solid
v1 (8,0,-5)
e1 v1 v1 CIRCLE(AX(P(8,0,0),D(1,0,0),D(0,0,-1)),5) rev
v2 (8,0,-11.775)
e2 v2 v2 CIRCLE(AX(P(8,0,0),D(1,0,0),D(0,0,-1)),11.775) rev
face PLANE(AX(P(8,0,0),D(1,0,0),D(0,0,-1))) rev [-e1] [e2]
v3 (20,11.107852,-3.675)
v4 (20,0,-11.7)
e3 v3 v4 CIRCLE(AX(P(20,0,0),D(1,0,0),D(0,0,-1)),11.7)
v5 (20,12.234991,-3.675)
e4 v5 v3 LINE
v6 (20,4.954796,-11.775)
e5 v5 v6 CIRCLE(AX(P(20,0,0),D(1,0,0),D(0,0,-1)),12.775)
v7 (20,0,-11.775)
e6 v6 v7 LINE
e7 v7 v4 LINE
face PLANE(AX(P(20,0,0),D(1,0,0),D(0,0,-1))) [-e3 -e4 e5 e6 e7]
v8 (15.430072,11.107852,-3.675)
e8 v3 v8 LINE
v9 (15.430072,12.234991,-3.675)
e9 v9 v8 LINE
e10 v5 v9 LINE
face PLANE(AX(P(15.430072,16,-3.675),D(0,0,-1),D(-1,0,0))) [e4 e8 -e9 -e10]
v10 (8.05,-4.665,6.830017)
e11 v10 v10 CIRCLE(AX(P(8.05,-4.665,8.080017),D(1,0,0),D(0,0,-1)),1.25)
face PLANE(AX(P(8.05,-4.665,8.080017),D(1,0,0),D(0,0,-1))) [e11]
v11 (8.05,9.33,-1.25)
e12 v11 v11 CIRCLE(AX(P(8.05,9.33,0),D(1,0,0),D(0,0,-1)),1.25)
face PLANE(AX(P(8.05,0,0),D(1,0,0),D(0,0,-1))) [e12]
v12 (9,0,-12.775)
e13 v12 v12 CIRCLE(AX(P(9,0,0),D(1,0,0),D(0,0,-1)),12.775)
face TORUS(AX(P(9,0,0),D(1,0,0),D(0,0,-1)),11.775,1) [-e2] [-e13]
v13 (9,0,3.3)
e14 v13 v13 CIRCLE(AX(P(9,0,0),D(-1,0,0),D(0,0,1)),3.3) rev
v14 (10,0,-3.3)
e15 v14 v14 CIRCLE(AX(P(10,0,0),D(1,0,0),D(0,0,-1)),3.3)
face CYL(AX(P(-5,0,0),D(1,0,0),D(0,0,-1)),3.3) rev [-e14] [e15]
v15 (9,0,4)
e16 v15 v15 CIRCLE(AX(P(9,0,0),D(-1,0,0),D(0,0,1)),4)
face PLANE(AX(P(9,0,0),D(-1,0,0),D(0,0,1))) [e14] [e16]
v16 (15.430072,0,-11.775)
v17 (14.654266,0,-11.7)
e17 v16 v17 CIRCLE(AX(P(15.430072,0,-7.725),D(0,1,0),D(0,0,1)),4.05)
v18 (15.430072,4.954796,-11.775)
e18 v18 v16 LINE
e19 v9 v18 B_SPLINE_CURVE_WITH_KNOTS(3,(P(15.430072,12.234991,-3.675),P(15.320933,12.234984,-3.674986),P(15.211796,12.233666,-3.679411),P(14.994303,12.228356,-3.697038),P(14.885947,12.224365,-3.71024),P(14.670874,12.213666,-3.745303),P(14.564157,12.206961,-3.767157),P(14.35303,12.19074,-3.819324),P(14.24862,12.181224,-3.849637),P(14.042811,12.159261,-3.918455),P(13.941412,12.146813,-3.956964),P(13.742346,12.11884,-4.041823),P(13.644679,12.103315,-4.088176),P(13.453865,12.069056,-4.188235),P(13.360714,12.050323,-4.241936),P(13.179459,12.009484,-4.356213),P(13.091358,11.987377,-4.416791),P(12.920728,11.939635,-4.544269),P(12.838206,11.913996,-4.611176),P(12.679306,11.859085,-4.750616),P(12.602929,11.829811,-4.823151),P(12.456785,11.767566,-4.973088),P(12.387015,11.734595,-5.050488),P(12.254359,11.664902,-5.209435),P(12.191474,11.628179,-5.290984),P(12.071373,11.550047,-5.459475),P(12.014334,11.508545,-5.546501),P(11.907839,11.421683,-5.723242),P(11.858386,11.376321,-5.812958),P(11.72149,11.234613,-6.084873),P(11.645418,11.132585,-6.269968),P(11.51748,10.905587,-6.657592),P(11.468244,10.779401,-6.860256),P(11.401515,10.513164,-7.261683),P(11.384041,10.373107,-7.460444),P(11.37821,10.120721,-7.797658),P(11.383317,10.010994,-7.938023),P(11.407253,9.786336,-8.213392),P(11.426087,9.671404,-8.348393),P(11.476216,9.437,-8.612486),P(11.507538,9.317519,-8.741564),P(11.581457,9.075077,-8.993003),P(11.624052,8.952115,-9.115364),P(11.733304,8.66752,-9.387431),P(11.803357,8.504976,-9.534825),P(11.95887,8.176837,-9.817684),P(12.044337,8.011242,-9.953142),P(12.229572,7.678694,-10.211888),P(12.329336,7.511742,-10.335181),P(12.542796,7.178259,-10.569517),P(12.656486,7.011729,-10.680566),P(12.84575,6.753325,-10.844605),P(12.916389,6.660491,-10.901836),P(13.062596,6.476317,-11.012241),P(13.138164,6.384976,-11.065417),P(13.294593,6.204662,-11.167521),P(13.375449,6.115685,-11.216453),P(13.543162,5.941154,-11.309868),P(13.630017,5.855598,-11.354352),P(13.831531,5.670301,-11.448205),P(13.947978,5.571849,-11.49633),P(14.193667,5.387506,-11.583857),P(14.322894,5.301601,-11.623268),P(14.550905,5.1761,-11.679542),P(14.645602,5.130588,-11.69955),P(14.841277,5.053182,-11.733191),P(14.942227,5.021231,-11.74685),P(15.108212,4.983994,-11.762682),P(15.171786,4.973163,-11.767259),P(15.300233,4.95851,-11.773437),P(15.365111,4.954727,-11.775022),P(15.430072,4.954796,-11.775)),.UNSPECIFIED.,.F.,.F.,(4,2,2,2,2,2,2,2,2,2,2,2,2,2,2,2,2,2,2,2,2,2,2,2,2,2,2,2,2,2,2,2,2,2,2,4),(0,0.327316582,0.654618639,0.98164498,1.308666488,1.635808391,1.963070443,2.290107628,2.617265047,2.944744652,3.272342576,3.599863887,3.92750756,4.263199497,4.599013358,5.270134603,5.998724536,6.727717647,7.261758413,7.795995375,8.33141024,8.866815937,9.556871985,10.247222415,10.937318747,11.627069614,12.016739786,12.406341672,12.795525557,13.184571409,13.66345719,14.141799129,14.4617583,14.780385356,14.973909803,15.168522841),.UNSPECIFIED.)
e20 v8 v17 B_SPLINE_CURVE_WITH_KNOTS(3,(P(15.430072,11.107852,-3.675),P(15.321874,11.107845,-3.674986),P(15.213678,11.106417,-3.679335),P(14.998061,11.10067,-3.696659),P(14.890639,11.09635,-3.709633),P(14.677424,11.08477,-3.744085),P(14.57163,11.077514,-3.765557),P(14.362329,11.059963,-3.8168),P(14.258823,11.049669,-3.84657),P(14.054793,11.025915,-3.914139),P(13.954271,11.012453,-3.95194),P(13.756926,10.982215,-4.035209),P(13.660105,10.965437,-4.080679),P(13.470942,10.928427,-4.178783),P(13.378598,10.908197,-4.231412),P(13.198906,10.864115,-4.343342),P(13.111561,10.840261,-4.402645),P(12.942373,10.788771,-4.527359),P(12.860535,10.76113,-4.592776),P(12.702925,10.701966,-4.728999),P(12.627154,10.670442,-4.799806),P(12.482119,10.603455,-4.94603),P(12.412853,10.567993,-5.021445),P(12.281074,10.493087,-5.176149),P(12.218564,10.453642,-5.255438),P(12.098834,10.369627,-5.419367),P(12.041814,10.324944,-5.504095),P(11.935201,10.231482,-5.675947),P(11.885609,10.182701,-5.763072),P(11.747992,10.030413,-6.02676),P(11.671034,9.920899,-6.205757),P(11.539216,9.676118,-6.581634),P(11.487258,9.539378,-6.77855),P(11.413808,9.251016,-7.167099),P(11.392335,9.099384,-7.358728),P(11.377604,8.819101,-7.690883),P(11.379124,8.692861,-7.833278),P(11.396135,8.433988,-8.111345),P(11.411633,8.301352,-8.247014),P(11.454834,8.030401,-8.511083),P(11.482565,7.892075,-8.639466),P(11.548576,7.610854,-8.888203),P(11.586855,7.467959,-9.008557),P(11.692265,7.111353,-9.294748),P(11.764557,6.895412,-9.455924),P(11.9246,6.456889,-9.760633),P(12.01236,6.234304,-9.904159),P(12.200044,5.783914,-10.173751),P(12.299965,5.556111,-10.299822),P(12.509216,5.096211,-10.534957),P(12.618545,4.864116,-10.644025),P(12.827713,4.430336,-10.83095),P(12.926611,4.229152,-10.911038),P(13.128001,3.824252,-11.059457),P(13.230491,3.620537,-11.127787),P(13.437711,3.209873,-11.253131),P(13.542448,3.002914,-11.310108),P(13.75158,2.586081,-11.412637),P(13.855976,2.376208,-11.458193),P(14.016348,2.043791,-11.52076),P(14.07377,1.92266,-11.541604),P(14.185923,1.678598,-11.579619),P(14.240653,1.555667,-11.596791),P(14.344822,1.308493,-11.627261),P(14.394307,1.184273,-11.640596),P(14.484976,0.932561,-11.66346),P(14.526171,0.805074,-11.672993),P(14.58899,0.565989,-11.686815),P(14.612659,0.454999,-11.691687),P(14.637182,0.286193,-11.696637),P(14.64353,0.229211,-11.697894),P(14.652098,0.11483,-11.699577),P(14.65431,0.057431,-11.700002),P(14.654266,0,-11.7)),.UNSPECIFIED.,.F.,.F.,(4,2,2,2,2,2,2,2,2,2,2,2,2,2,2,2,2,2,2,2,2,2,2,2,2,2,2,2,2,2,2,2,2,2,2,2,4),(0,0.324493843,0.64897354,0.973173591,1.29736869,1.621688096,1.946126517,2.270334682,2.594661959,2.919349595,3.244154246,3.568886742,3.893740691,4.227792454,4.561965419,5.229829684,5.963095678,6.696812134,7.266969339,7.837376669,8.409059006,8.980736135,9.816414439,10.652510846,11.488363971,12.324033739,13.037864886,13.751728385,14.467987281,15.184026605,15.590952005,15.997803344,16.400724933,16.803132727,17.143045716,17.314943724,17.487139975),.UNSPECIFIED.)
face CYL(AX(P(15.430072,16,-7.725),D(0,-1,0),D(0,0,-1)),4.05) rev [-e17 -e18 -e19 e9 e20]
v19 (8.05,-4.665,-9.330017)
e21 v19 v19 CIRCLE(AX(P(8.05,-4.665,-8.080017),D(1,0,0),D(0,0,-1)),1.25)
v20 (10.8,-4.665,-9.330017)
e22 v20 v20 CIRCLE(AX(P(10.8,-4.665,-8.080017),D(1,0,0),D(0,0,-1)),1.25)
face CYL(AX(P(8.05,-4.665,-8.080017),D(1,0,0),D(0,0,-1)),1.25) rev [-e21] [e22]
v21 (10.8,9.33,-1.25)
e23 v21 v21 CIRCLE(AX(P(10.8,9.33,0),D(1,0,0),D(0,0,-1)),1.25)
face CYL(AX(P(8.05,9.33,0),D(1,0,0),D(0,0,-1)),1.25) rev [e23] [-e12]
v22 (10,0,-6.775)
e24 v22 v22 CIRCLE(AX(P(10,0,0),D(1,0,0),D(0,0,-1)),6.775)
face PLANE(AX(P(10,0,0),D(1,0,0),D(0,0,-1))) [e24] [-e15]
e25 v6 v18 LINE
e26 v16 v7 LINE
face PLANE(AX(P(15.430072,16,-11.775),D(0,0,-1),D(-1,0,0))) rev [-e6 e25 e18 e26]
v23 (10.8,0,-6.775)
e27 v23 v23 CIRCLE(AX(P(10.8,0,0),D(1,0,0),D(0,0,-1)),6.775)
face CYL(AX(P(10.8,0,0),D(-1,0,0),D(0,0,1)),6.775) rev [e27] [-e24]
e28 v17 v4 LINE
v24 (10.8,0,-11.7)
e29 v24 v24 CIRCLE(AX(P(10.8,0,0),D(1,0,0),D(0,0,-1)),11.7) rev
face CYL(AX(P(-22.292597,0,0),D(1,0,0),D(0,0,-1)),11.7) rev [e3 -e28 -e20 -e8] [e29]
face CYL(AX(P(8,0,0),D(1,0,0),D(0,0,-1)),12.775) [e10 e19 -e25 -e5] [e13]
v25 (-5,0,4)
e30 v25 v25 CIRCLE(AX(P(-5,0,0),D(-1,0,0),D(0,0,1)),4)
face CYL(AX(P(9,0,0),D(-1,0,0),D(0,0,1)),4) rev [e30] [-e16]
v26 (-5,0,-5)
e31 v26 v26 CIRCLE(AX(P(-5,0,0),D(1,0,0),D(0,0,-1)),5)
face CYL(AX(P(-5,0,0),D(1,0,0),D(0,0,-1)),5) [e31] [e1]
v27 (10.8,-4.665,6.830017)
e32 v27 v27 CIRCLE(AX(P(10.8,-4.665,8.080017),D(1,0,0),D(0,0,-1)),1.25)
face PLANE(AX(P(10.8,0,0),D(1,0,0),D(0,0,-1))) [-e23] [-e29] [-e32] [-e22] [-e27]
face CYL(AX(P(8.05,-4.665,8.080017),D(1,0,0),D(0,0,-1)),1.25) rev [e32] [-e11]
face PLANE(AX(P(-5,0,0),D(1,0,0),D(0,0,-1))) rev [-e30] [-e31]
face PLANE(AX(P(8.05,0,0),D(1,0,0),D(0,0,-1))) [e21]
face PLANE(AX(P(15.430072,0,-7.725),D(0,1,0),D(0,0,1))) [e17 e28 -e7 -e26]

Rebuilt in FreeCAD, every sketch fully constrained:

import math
import FreeCAD as App
import Part
import Sketcher
from FreeCAD import Vector


def edges_at(feature, points):
    """Names of the edges that pass closest to the given points."""
    edges = feature.Shape.Edges
    near = lambda p: min(range(len(edges)), key=lambda i: edges[i].distToShape(Part.Vertex(*p))[0])
    return sorted({f"Edge{near(p) + 1}" for p in points})

doc = App.newDocument("Part")
body = doc.addObject("PartDesign::Body", "Body")

sketch1 = body.newObject("Sketcher::SketchObject", "Sketch")
sketch1.AttachmentSupport = (doc.getObject("YZ_Plane"), [""])
sketch1.MapMode = "FlatFace"
sketch1.addGeometry(Part.Circle(Vector(0, 0, 0), Vector(0, 0, 1), 5), False)
sketch1.addGeometry(Part.Circle(Vector(0, 0, 0), Vector(0, 0, 1), 3.3), False)
sketch1.addConstraint(Sketcher.Constraint("Coincident", 0, 3, -1, 1))
sketch1.addConstraint(Sketcher.Constraint("Coincident", 1, 3, -1, 1))
sketch1.addConstraint(Sketcher.Constraint("Diameter", 0, 10.0))
sketch1.addConstraint(Sketcher.Constraint("Diameter", 1, 6.6))
pad1 = body.newObject("PartDesign::Pad", "Pad")
pad1.Profile = sketch1
pad1.Type = "TwoLengths"
pad1.Length = 10
pad1.Length2 = 5

sketch2 = body.newObject("Sketcher::SketchObject", "Sketch001")
sketch2.AttachmentSupport = (doc.getObject("YZ_Plane"), [""])
sketch2.MapMode = "FlatFace"
sketch2.AttachmentOffset = App.Placement(Vector(0, 0, 10), App.Rotation())
sketch2.addGeometry(Part.Circle(Vector(0, 0, 0), Vector(0, 0, 1), 12.8), False)
sketch2.addGeometry(Part.Circle(Vector(0, 0, 0), Vector(0, 0, 1), 3.6), False)
sketch2.addConstraint(Sketcher.Constraint("Coincident", 0, 3, -1, 1))
sketch2.addConstraint(Sketcher.Constraint("Coincident", 1, 3, -1, 1))
sketch2.addConstraint(Sketcher.Constraint("Diameter", 1, 7.3))
sketch2.addConstraint(Sketcher.Constraint("Diameter", 0, 25.55))
pad2 = body.newObject("PartDesign::Pad", "Pad001")
pad2.Profile = sketch2
pad2.Length = 2
pad2.Reversed = True

sketch3 = body.newObject("Sketcher::SketchObject", "Sketch002")
sketch3.AttachmentSupport = (doc.getObject("YZ_Plane"), [""])
sketch3.MapMode = "FlatFace"
sketch3.AttachmentOffset = App.Placement(Vector(0, 0, 10), App.Rotation())
sketch3.addGeometry(Part.Circle(Vector(0, 0, 0), Vector(0, 0, 1), 11), False)
sketch3.addGeometry(Part.Circle(Vector(0, 0, 0), Vector(0, 0, 1), 7), False)
sketch3.addConstraint(Sketcher.Constraint("Coincident", 0, 3, -1, 1))
sketch3.addConstraint(Sketcher.Constraint("Coincident", 1, 3, -1, 1))
sketch3.addConstraint(Sketcher.Constraint("Diameter", 0, 22.55))
sketch3.addConstraint(Sketcher.Constraint("Diameter", 1, 13.55))
pad3 = body.newObject("PartDesign::Pad", "Pad002")
pad3.Profile = sketch3
pad3.Length = 0.8

sketch4 = body.newObject("Sketcher::SketchObject", "Sketch003")
sketch4.AttachmentSupport = (doc.getObject("YZ_Plane"), [""])
sketch4.MapMode = "FlatFace"
sketch4.AttachmentOffset = App.Placement(Vector(0, 0, 10.8), App.Rotation())
sketch4.addGeometry(Part.ArcOfCircle(Part.Circle(Vector(-4.7, -8.1, 0), Vector(0, 0, 1), 1.2), math.radians(-90), math.radians(30)), False)
sketch4.addGeometry(Part.ArcOfCircle(Part.Circle(Vector(-4.7, -8.1, 0), Vector(0, 0, 1), 1.3), math.radians(30), math.radians(90)), False)
sketch4.addGeometry(Part.ArcOfCircle(Part.Circle(Vector(-4.7, -8.1, 0), Vector(0, 0, 1), 1.2), math.radians(90), math.radians(270)), False)
sketch4.addGeometry(Part.ArcOfCircle(Part.Circle(Vector(9.3, 0, 0), Vector(0, 0, 1), 1.3), math.radians(150), math.radians(210)), False)
sketch4.addGeometry(Part.ArcOfCircle(Part.Circle(Vector(9.3, 0, 0), Vector(0, 0, 1), 1.2), math.radians(-150), math.radians(-90)), False)
sketch4.addGeometry(Part.ArcOfCircle(Part.Circle(Vector(9.3, 0, 0), Vector(0, 0, 1), 1.2), math.radians(-90), math.radians(150)), False)
sketch4.addGeometry(Part.Circle(Vector(-4.7, 8.1, 0), Vector(0, 0, 1), 1.2), False)
sketch4.addConstraint(Sketcher.Constraint("Tangent", 0, 2, 1, 1))
sketch4.addConstraint(Sketcher.Constraint("Tangent", 1, 2, 2, 1))
sketch4.addConstraint(Sketcher.Constraint("Tangent", 2, 2, 0, 1))
sketch4.addConstraint(Sketcher.Constraint("Tangent", 3, 2, 4, 1))
sketch4.addConstraint(Sketcher.Constraint("Tangent", 4, 2, 5, 1))
sketch4.addConstraint(Sketcher.Constraint("Tangent", 5, 2, 3, 1))
sketch4.addConstraint(Sketcher.Constraint("Equal", 2, 3))
sketch4.addConstraint(Sketcher.Constraint("Equal", 5, 6))
sketch4.addConstraint(Sketcher.Constraint("Symmetric", 0, 3, 6, 3, -1))
sketch4.addConstraint(Sketcher.Constraint("Symmetric", 3, 2, 5, 2, -1))
sketch4.addConstraint(Sketcher.Constraint("Vertical", 6, 3, 1, 2))
sketch4.addConstraint(Sketcher.Constraint("Vertical", 1, 2, 2, 2))
sketch4.addConstraint(Sketcher.Constraint("Vertical", 5, 3, 4, 2))
sketch4.addConstraint(Sketcher.Constraint("Diameter", 6, 2.5))
sketch4.addConstraint(Sketcher.Constraint("DistanceX", -1, 1, 3, 3, 9.33))
sketch4.addConstraint(Sketcher.Constraint("DistanceY", 3, 2, 5, 2, 1.25))
sketch4.addConstraint(Sketcher.Constraint("DistanceX", 0, 3, -1, 1, 4.665))
sketch4.addConstraint(Sketcher.Constraint("DistanceY", 0, 3, 0, 2, 0.625))
sketch4.addConstraint(Sketcher.Constraint("DistanceY", 0, 3, -1, 1, 8.080017))
pocket1 = body.newObject("PartDesign::Pocket", "Pocket")
pocket1.Profile = sketch4
pocket1.Length = 2.75
doc.recompute()

fillet = body.newObject("PartDesign::Fillet", "Fillet")
fillet.Base = (pocket1, edges_at(pocket1, [(8, 0, 12.775)]))
fillet.Radius = 1

sketch5 = body.newObject("Sketcher::SketchObject", "Sketch004")
sketch5.AttachmentSupport = (doc.getObject("YZ_Plane"), [""])
sketch5.MapMode = "FlatFace"
sketch5.AttachmentOffset = App.Placement(Vector(0, 0, 10), App.Rotation())
sketch5.addGeometry(Part.Circle(Vector(0, 0, 0), Vector(0, 0, 1), 13), False)
sketch5.addGeometry(Part.Circle(Vector(0, 0, 0), Vector(0, 0, 1), 11), False)
sketch5.addConstraint(Sketcher.Constraint("Coincident", 0, 3, -1, 1))
sketch5.addConstraint(Sketcher.Constraint("Coincident", 1, 3, -1, 1))
sketch5.addConstraint(Sketcher.Constraint("Diameter", 0, 25.55))
sketch5.addConstraint(Sketcher.Constraint("Diameter", 1, 22.55))
pad4 = body.newObject("PartDesign::Pad", "Pad003")
pad4.Profile = sketch5
pad4.Length = 10

sketch6 = body.newObject("Sketcher::SketchObject", "Sketch005")
sketch6.AttachmentSupport = (doc.getObject("YZ_Plane"), [""])
sketch6.MapMode = "FlatFace"
sketch6.AttachmentOffset = App.Placement(Vector(0, 0, 20), App.Rotation())
sketch6.addGeometry(Part.Circle(Vector(0, 0, 0), Vector(0, 0, 1), 12), False)
sketch6.addConstraint(Sketcher.Constraint("Coincident", 0, 3, -1, 1))
sketch6.addConstraint(Sketcher.Constraint("Diameter", 0, 23.4))
pocket2 = body.newObject("PartDesign::Pocket", "Pocket001")
pocket2.Profile = sketch6
pocket2.Length = 9.2

sketch7 = body.newObject("Sketcher::SketchObject", "Sketch006")
sketch7.AttachmentSupport = (doc.getObject("XZ_Plane"), [""])
sketch7.MapMode = "FlatFace"
sketch7.addGeometry(Part.LineSegment(Vector(15.4, -3.7, 0), Vector(20, -3.7, 0)), False)
sketch7.addGeometry(Part.LineSegment(Vector(20, -3.7, 0), Vector(20, -11.8, 0)), False)
sketch7.addGeometry(Part.LineSegment(Vector(20, -11.8, 0), Vector(15.4, -11.8, 0)), False)
sketch7.addGeometry(Part.ArcOfCircle(Part.Circle(Vector(15.4, -7.7, 0), Vector(0, 0, 1), 4), math.radians(90), math.radians(270)), False)
sketch7.addConstraint(Sketcher.Constraint("Coincident", 0, 2, 1, 1))
sketch7.addConstraint(Sketcher.Constraint("Coincident", 1, 2, 2, 1))
sketch7.addConstraint(Sketcher.Constraint("Tangent", 2, 2, 3, 2))
sketch7.addConstraint(Sketcher.Constraint("Tangent", 3, 1, 0, 1))
sketch7.addConstraint(Sketcher.Constraint("Horizontal", 0))
sketch7.addConstraint(Sketcher.Constraint("Vertical", 1))
sketch7.addConstraint(Sketcher.Constraint("Horizontal", 2))
sketch7.addConstraint(Sketcher.Constraint("Radius", 3, 4.05))
sketch7.addConstraint(Sketcher.Constraint("DistanceX", -1, 1, 0, 2, 20.0))
sketch7.addConstraint(Sketcher.Constraint("DistanceY", 3, 3, -1, 1, 7.725))
sketch7.addConstraint(Sketcher.Constraint("DistanceX", 0, 1, 0, 2, 4.569928))
pocket3 = body.newObject("PartDesign::Pocket", "Pocket002")
pocket3.Profile = sketch7
pocket3.Length = 16

sketch8 = body.newObject("Sketcher::SketchObject", "Sketch007")
sketch8.AttachmentSupport = (doc.getObject("YZ_Plane"), [""])
sketch8.MapMode = "FlatFace"
sketch8.AttachmentOffset = App.Placement(Vector(0, 0, -5), App.Rotation())
sketch8.addGeometry(Part.Circle(Vector(0, 0, 0), Vector(0, 0, 1), 4), False)
sketch8.addConstraint(Sketcher.Constraint("Coincident", 0, 3, -1, 1))
sketch8.addConstraint(Sketcher.Constraint("Diameter", 0, 8.0))
pocket4 = body.newObject("PartDesign::Pocket", "Pocket003")
pocket4.Profile = sketch8
pocket4.Length = 14
pocket4.Reversed = True

doc.recompute()
